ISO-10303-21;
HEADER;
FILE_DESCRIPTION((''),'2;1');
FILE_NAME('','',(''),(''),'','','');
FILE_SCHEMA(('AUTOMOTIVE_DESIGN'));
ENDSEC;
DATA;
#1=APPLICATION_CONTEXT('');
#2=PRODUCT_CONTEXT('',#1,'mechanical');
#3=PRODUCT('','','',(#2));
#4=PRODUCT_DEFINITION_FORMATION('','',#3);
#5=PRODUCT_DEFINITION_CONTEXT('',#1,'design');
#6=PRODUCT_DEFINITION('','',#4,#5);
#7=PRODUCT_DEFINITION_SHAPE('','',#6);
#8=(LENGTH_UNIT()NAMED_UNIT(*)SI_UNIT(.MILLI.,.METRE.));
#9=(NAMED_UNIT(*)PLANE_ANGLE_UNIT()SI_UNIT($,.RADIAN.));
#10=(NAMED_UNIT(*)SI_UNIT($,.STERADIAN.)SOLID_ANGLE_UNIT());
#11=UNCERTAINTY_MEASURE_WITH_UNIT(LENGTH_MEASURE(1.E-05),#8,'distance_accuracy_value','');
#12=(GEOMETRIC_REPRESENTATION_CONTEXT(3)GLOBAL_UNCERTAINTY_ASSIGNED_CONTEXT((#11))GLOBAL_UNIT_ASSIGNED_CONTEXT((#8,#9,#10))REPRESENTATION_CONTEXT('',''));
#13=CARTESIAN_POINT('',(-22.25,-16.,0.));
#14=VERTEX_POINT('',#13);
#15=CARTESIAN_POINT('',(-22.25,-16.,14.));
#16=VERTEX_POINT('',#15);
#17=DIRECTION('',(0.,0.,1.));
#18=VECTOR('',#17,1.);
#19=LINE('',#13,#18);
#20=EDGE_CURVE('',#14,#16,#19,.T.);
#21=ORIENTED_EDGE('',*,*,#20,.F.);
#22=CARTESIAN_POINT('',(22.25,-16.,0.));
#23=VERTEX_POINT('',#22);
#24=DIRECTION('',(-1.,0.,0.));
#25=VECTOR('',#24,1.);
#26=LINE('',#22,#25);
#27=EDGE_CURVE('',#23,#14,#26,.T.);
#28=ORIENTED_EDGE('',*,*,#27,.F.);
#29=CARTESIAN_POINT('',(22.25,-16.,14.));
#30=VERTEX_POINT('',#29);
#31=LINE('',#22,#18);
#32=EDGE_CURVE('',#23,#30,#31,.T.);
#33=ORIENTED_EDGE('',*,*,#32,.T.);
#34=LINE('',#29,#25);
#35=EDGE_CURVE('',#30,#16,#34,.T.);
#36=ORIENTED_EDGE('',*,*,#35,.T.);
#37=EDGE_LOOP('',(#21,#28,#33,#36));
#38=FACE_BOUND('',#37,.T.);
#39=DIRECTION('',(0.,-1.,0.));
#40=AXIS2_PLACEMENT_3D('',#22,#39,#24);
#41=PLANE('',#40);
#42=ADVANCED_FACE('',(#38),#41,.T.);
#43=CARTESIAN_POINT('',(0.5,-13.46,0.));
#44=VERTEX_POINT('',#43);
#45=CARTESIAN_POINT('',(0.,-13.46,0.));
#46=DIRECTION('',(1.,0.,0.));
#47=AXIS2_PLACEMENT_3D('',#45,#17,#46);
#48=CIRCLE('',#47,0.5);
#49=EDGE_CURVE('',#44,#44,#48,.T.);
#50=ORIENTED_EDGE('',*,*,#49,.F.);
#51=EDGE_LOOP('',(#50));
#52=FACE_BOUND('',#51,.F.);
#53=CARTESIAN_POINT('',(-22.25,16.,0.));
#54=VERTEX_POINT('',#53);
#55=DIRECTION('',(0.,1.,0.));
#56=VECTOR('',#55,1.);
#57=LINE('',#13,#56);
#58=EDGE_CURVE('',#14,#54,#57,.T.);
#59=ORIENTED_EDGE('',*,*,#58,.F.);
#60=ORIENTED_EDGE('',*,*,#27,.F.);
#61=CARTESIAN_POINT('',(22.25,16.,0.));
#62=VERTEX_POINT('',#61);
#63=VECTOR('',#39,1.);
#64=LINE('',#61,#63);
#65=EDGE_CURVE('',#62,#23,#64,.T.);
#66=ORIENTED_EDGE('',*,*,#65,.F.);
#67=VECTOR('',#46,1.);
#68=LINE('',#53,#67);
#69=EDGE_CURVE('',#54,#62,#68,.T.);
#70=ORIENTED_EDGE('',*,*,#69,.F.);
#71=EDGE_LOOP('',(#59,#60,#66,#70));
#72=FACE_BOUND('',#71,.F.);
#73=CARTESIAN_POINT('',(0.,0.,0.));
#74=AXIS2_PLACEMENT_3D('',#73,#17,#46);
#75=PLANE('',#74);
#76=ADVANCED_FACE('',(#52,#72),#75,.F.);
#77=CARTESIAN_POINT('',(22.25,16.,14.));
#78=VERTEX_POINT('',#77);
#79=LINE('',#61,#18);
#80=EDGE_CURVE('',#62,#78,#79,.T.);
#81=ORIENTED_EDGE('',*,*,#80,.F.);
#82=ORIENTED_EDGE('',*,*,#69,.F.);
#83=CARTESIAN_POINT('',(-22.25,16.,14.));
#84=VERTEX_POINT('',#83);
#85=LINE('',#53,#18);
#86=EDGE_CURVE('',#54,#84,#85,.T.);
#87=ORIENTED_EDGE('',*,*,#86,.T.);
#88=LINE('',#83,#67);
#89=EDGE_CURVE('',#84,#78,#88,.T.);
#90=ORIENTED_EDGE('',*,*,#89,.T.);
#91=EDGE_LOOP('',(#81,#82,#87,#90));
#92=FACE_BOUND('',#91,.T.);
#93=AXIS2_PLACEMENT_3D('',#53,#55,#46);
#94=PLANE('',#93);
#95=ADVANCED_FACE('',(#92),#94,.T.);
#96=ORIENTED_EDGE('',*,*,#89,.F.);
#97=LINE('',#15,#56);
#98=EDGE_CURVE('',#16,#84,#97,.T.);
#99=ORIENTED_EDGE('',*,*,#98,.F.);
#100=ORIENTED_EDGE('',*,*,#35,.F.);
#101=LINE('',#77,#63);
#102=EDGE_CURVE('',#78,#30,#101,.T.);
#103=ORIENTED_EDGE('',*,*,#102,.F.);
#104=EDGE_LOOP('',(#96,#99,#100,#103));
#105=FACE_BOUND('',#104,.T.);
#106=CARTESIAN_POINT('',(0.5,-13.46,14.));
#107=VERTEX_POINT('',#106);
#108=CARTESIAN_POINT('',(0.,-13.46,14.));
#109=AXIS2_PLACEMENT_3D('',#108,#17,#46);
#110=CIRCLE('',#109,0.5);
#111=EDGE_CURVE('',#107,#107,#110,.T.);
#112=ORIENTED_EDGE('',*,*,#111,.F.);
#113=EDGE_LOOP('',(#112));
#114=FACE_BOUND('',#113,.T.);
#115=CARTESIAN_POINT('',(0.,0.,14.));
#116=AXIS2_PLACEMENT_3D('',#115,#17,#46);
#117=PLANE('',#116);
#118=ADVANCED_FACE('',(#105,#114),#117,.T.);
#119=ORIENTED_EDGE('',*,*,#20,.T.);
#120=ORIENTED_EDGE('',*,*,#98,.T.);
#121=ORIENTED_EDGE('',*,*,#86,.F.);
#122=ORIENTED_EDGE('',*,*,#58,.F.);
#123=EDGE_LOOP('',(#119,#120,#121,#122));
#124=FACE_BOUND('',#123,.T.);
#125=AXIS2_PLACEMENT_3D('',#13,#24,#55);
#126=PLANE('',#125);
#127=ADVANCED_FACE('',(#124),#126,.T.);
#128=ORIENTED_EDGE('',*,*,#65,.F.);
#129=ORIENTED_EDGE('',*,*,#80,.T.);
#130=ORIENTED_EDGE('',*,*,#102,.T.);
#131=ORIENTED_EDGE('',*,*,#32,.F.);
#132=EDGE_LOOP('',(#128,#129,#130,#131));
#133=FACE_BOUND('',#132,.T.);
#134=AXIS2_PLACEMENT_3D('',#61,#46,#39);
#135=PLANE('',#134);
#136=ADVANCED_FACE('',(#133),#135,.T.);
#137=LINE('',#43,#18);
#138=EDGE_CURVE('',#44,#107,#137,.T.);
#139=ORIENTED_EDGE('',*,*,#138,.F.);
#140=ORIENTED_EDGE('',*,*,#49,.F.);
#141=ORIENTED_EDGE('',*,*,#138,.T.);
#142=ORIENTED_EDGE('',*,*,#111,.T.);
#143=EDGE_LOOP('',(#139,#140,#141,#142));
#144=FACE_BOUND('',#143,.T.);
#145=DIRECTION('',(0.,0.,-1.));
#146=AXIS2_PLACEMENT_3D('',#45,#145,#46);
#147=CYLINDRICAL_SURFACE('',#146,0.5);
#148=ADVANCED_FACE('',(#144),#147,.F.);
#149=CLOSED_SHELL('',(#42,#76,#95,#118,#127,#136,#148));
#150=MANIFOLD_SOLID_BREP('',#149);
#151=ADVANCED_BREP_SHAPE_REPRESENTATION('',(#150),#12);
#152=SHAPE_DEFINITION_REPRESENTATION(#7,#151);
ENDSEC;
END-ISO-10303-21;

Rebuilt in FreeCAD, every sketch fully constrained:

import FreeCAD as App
import Part
import Sketcher
from FreeCAD import Vector
Q = App.Units.Quantity

doc = App.newDocument("Part")
body = doc.addObject("PartDesign::Body", "Body")

# Sketch on XY plane
sketch1 = body.newObject("Sketcher::SketchObject", "Sketch")
sketch1.AttachmentSupport = (doc.getObject("XY_Plane"), [""])
sketch1.MapMode = "FlatFace"
sketch1.addGeometry([
    Part.LineSegment(Vector(22.25, 16, 0), Vector(-22.25, 16, 0)),  # 0
    Part.LineSegment(Vector(-22.25, 16, 0), Vector(-22.25, -16, 0)),  # 1
    Part.LineSegment(Vector(-22.25, -16, 0), Vector(22.25, -16, 0)),  # 2
    Part.LineSegment(Vector(22.25, -16, 0), Vector(22.25, 16, 0)),  # 3
    Part.Circle(Vector(0, -13.46, 0), Vector(0, 0, 1), 0.5),  # 4
], False)
sketch1.addConstraint([
    Sketcher.Constraint("Coincident", 0, 2, 1, 1),
    Sketcher.Constraint("Coincident", 1, 2, 2, 1),
    Sketcher.Constraint("Coincident", 2, 2, 3, 1),
    Sketcher.Constraint("Coincident", 3, 2, 0, 1),
    Sketcher.Constraint("Horizontal", 0),
    Sketcher.Constraint("Vertical", 1),
    Sketcher.Constraint("Horizontal", 2),
    Sketcher.Constraint("Vertical", 3),
    Sketcher.Constraint("Symmetric", 0, 2, 2, 2, -1, 1),
    Sketcher.Constraint("PointOnObject", 4, 3, -2),
    Sketcher.Constraint("Diameter", 4, Q("1 mm")),
    Sketcher.Constraint("DistanceY", 1, 2, 1, 1, Q("32 mm")),
    Sketcher.Constraint("DistanceX", 0, 2, 0, 1, Q("44.5 mm")),
    Sketcher.Constraint("DistanceY", 1, 2, 4, 3, Q("2.54 mm")),
])
pad1 = body.newObject("PartDesign::Pad", "Pad")
pad1.Profile = sketch1
pad1.Length = 14

doc.recompute()
